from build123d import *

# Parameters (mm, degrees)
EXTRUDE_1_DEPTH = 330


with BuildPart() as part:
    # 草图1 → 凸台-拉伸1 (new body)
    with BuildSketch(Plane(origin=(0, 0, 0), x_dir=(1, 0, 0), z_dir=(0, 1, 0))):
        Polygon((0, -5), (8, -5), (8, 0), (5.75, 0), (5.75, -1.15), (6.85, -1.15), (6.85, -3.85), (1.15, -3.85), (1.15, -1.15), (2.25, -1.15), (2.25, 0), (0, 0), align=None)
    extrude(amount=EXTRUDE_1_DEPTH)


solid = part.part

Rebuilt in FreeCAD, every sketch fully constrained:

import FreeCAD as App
import Part
import Sketcher
from FreeCAD import Vector
Q = App.Units.Quantity

doc = App.newDocument("Part")
body = doc.addObject("PartDesign::Body", "Body")

sketch1 = body.newObject("Sketcher::SketchObject", "Sketch")
sketch1.AttachmentSupport = (doc.getObject("XZ_Plane"), [""])
sketch1.MapMode = "FlatFace"
sketch1.addGeometry(Part.LineSegment(Vector(0, 5, 0), Vector(8, 5, 0)), False)
sketch1.addGeometry(Part.LineSegment(Vector(8, 5, 0), Vector(8, 0, 0)), False)
sketch1.addGeometry(Part.LineSegment(Vector(8, 0, 0), Vector(5.8, 0, 0)), False)
sketch1.addGeometry(Part.LineSegment(Vector(5.8, 0, 0), Vector(5.8, 1.1, 0)), False)
sketch1.addGeometry(Part.LineSegment(Vector(5.8, 1.1, 0), Vector(6.8, 1.1, 0)), False)
sketch1.addGeometry(Part.LineSegment(Vector(6.8, 1.1, 0), Vector(6.8, 3.9, 0)), False)
sketch1.addGeometry(Part.LineSegment(Vector(6.8, 3.9, 0), Vector(1.1, 3.9, 0)), False)
sketch1.addGeometry(Part.LineSegment(Vector(1.1, 3.9, 0), Vector(1.1, 1.1, 0)), False)
sketch1.addGeometry(Part.LineSegment(Vector(1.1, 1.1, 0), Vector(2.2, 1.1, 0)), False)
sketch1.addGeometry(Part.LineSegment(Vector(2.2, 1.1, 0), Vector(2.2, 0, 0)), False)
sketch1.addGeometry(Part.LineSegment(Vector(2.2, 0, 0), Vector(0, 0, 0)), False)
sketch1.addGeometry(Part.LineSegment(Vector(0, 0, 0), Vector(0, 5, 0)), False)
sketch1.addConstraint(Sketcher.Constraint("Coincident", 0, 2, 1, 1))
sketch1.addConstraint(Sketcher.Constraint("Coincident", 1, 2, 2, 1))
sketch1.addConstraint(Sketcher.Constraint("Coincident", 2, 2, 3, 1))
sketch1.addConstraint(Sketcher.Constraint("Coincident", 3, 2, 4, 1))
sketch1.addConstraint(Sketcher.Constraint("Coincident", 4, 2, 5, 1))
sketch1.addConstraint(Sketcher.Constraint("Coincident", 5, 2, 6, 1))
sketch1.addConstraint(Sketcher.Constraint("Coincident", 6, 2, 7, 1))
sketch1.addConstraint(Sketcher.Constraint("Coincident", 7, 2, 8, 1))
sketch1.addConstraint(Sketcher.Constraint("Coincident", 8, 2, 9, 1))
sketch1.addConstraint(Sketcher.Constraint("Coincident", 9, 2, 10, 1))
sketch1.addConstraint(Sketcher.Constraint("Coincident", 10, 2, 11, 1))
sketch1.addConstraint(Sketcher.Constraint("Coincident", 11, 2, 0, 1))
sketch1.addConstraint(Sketcher.Constraint("Horizontal", 0))
sketch1.addConstraint(Sketcher.Constraint("Vertical", 1))
sketch1.addConstraint(Sketcher.Constraint("Horizontal", 2))
sketch1.addConstraint(Sketcher.Constraint("Vertical", 3))
sketch1.addConstraint(Sketcher.Constraint("Horizontal", 4))
sketch1.addConstraint(Sketcher.Constraint("Vertical", 5))
sketch1.addConstraint(Sketcher.Constraint("Horizontal", 6))
sketch1.addConstraint(Sketcher.Constraint("Vertical", 7))
sketch1.addConstraint(Sketcher.Constraint("Horizontal", 8))
sketch1.addConstraint(Sketcher.Constraint("Vertical", 9))
sketch1.addConstraint(Sketcher.Constraint("Horizontal", 10))
sketch1.addConstraint(Sketcher.Constraint("Vertical", 11))
sketch1.addConstraint(Sketcher.Constraint("Coincident", 10, 2, -1, 1))
sketch1.addConstraint(Sketcher.Constraint("PointOnObject", 1, 2, -1))
sketch1.addConstraint(Sketcher.Constraint("Horizontal", 4, 2, 7, 2))
sketch1.addConstraint(Sketcher.Constraint("Equal", 4, 8))
sketch1.addConstraint(Sketcher.Constraint("Equal", 2, 10))
sketch1.addConstraint(Sketcher.Constraint("DistanceX", 0, 1, 0, 2, Q("8 mm")))
sketch1.addConstraint(Sketcher.Constraint("DistanceY", 1, 2, 1, 1, Q("5 mm")))
sketch1.addConstraint(Sketcher.Constraint("DistanceX", 4, 1, 4, 2, Q("1.1 mm")))
sketch1.addConstraint(Sketcher.Constraint("DistanceX", 6, 2, 6, 1, Q("5.7 mm")))
sketch1.addConstraint(Sketcher.Constraint("DistanceY", 5, 1, 5, 2, Q("2.7 mm")))
sketch1.addConstraint(Sketcher.Constraint("DistanceY", 3, 1, 3, 2, Q("1.15 mm")))
pad1 = body.newObject("PartDesign::Pad", "Pad")
pad1.Profile = sketch1
pad1.Length = 330
pad1.Reversed = True

doc.recompute()
